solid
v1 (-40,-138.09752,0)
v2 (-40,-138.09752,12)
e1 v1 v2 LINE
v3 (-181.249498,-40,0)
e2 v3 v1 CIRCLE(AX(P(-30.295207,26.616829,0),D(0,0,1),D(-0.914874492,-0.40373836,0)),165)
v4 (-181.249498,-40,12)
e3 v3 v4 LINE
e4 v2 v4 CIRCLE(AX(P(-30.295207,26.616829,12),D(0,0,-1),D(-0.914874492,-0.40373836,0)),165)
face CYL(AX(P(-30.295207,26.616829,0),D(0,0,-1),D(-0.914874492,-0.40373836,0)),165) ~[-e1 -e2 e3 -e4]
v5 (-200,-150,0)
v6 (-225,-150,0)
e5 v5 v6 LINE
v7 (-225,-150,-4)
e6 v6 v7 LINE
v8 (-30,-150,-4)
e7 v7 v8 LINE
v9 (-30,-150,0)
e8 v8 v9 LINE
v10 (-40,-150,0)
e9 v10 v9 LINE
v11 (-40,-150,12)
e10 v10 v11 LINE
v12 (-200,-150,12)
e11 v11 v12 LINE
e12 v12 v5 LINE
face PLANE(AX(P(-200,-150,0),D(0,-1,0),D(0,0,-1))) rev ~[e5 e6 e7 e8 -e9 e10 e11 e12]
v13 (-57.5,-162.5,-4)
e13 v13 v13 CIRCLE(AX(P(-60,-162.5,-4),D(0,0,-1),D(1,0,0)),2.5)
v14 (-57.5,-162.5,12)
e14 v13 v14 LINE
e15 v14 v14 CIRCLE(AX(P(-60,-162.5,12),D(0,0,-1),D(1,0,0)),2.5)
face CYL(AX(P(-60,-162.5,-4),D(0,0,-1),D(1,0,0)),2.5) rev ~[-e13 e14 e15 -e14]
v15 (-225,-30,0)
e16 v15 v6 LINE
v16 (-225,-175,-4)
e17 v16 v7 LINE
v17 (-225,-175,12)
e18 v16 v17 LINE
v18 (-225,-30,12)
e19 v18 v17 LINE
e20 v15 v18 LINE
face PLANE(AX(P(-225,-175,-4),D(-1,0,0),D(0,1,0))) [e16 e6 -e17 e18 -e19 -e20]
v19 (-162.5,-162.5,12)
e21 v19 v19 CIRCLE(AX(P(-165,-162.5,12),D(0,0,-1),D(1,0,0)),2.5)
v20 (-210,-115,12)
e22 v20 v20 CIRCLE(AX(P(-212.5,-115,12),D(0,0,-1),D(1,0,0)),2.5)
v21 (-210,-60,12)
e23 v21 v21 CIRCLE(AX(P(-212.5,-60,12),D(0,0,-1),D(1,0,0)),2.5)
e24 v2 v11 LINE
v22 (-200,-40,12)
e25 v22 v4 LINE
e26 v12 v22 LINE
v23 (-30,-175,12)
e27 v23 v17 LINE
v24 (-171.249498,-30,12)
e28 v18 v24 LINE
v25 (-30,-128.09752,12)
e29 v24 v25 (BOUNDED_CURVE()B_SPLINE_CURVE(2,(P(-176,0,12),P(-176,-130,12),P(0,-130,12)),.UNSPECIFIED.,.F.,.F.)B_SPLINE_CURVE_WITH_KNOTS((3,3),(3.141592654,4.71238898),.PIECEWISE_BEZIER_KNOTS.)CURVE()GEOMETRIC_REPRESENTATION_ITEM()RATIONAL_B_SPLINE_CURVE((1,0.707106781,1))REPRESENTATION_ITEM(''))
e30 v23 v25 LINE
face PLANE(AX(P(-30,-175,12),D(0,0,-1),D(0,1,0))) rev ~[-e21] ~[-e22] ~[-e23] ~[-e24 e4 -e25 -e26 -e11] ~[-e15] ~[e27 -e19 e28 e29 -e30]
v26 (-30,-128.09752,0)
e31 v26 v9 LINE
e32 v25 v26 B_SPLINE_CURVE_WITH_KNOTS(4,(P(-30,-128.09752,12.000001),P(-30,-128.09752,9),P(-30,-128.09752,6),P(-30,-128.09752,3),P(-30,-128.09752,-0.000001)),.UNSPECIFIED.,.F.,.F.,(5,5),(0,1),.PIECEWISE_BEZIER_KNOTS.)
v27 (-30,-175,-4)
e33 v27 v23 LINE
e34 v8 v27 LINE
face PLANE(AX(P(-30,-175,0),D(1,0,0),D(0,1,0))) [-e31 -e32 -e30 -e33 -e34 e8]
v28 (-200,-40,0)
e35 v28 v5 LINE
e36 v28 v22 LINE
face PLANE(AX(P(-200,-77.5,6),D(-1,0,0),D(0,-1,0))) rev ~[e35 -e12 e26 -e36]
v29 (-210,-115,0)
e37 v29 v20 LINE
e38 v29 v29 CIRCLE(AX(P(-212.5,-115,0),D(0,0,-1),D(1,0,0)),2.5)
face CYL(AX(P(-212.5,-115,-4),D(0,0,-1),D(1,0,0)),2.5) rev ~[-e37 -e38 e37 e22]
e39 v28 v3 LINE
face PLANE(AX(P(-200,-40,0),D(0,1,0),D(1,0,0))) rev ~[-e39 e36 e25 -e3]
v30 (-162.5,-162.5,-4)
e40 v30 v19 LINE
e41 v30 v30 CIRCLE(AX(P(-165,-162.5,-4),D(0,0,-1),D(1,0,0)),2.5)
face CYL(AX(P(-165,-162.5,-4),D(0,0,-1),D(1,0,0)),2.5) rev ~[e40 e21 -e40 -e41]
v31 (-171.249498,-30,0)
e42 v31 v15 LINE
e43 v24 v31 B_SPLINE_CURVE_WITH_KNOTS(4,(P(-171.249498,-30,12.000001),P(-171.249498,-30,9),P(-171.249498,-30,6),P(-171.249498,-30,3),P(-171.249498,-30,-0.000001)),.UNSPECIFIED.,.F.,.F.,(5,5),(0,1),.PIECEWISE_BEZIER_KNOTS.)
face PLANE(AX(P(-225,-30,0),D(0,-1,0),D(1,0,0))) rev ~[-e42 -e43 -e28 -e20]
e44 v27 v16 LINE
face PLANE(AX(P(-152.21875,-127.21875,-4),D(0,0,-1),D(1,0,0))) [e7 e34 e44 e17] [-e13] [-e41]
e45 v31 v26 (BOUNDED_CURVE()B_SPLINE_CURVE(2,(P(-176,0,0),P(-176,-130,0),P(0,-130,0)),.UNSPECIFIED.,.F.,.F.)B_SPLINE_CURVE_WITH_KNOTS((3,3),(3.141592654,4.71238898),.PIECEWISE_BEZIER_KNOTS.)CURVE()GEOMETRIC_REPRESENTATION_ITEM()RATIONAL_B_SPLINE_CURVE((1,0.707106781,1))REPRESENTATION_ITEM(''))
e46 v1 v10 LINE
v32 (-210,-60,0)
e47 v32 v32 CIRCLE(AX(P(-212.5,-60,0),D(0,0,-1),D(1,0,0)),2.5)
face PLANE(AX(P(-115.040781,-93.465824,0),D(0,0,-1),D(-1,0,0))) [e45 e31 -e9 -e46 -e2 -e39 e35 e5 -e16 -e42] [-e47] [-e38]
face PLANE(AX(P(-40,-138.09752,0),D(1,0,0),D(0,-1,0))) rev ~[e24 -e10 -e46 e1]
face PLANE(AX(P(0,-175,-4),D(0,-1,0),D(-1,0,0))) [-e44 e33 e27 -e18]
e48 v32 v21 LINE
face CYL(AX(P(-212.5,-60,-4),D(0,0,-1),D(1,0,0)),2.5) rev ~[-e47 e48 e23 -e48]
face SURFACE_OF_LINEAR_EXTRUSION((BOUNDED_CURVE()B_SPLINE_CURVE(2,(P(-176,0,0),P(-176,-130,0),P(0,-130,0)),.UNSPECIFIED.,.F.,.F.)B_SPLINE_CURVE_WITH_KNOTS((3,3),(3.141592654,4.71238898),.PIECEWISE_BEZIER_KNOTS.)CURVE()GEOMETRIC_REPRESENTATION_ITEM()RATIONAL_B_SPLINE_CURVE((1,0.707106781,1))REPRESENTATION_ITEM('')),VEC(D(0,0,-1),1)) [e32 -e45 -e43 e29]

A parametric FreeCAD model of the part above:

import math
import FreeCAD as App
import Part
import Sketcher

V = App.Vector
Q = App.Units.Quantity

doc = App.newDocument("Part")
params = doc.addObject("Spreadsheet::Sheet", "Params")
for row, (alias, value) in enumerate([
    ("sketch1_width", "24 mm"),
    ("sketch1_height", "150 mm"),
    ("pad1_length", "12 mm"),
    ("sketch2_width", "200 mm"),
    ("sketch2_height", "20 mm"),
    ("pad2_length", "5 mm"),
    ("sketch3_width", "155 mm"),
    ("sketch3_height", "20 mm"),
    ("pad3_length", "5 mm"),
    ("sketch4_diameter", "5 mm"),
    ("sketch4_width", "225 mm"),
    ("sketch4_width2", "20 mm"),
    ("sketch4_height", "175 mm"),
    ("pad4_length", "25 mm"),
    ("sketch5_width", "15 mm"),
    ("sketch5_width2", "205 mm"),
    ("sketch5_height", "155 mm"),
    ("pad5_length", "5 mm"),
    ("sketch6_width", "195 mm"),
    ("sketch6_width2", "30 mm"),
    ("sketch6_height", "145 mm"),
    ("pocket1_length", "50 mm"),
    ("sketch7_width", "145 mm"),
    ("sketch7_height", "9 mm"),
    ("sketch8_radius", "165 mm"),
    ("sketch8_width", "160 mm"),
    ("sketch8_height", "110 mm"),
    ("pocket3_length", "25 mm"),
    ("sketch9_width", "120 mm"),
    ("sketch9_height", "4 mm"),
], start=1):
    params.set(f"A{row}", alias)
    params.set(f"B{row}", "=" + value)
    params.setAlias(f"B{row}", alias)

body = doc.addObject("PartDesign::Body", "Body")

sketch1 = body.newObject("Sketcher::SketchObject", "Sketch")
sketch1.AttachmentSupport = (doc.getObject("XY_Plane"), [""])
sketch1.MapMode = "FlatFace"
sketch1.addGeometry(Part.BSplineCurve([V(-176, 0, 0), V(-176, -130, 0), V(0, -130, 0)], [3, 3], [3.141592654, 4.71238898], False, 2, [1, 0.707106781, 1], False), False)
sketch1.addGeometry(Part.LineSegment(V(-176, 0, 0), V(-200, 0, 0)), False)
sketch1.addGeometry(Part.LineSegment(V(-200, 0, 0), V(-200, -150, 0)), False)
sketch1.addGeometry(Part.LineSegment(V(-200, -150, 0), V(0, -150, 0)), False)
sketch1.addGeometry(Part.LineSegment(V(0, -150, 0), V(0, -130, 0)), False)
sketch1.addConstraint(Sketcher.Constraint("Block", 0))
sketch1.addConstraint(Sketcher.Constraint("Coincident", 0, 1, 1, 1))
sketch1.addConstraint(Sketcher.Constraint("Coincident", 1, 2, 2, 1))
sketch1.addConstraint(Sketcher.Constraint("Coincident", 2, 2, 3, 1))
sketch1.addConstraint(Sketcher.Constraint("Coincident", 3, 2, 4, 1))
sketch1.addConstraint(Sketcher.Constraint("Coincident", 4, 2, 0, 2))
sketch1.addConstraint(Sketcher.Constraint("Horizontal", 1))
sketch1.addConstraint(Sketcher.Constraint("Vertical", 2))
sketch1.addConstraint(Sketcher.Constraint("Horizontal", 3))
sketch1.addConstraint(Sketcher.Constraint("Vertical", 4))
sketch1.addConstraint(Sketcher.Constraint("DistanceX", 1, 2, 1, 1, Q("24 mm")))
sketch1.addConstraint(Sketcher.Constraint("DistanceY", 2, 2, 2, 1, Q("150 mm")))
sketch1.setExpression("Constraints[10]", "Params.sketch1_width")
sketch1.setExpression("Constraints[11]", "Params.sketch1_height")
pad1 = body.newObject("PartDesign::Pad", "Pad")
pad1.Profile = sketch1
pad1.setExpression("Length", "Params.pad1_length")

sketch2 = body.newObject("Sketcher::SketchObject", "Sketch001")
sketch2.AttachmentSupport = (doc.getObject("XZ_Plane"), [""])
sketch2.MapMode = "FlatFace"
sketch2.AttachmentOffset = App.Placement(V(0, 0, 150), App.Rotation())
sketch2.addGeometry(Part.LineSegment(V(-200, 16, 0), V(-200, -4, 0)), False)
sketch2.addGeometry(Part.LineSegment(V(-200, -4, 0), V(0, -4, 0)), False)
sketch2.addGeometry(Part.LineSegment(V(0, -4, 0), V(0, 16, 0)), False)
sketch2.addGeometry(Part.LineSegment(V(0, 16, 0), V(-200, 16, 0)), False)
sketch2.addConstraint(Sketcher.Constraint("Coincident", 0, 2, 1, 1))
sketch2.addConstraint(Sketcher.Constraint("Coincident", 1, 2, 2, 1))
sketch2.addConstraint(Sketcher.Constraint("Coincident", 2, 2, 3, 1))
sketch2.addConstraint(Sketcher.Constraint("Coincident", 3, 2, 0, 1))
sketch2.addConstraint(Sketcher.Constraint("Vertical", 0))
sketch2.addConstraint(Sketcher.Constraint("Horizontal", 1))
sketch2.addConstraint(Sketcher.Constraint("Vertical", 2))
sketch2.addConstraint(Sketcher.Constraint("Horizontal", 3))
sketch2.addConstraint(Sketcher.Constraint("PointOnObject", 1, 2, -2))
sketch2.addConstraint(Sketcher.Constraint("DistanceX", 1, 1, 1, 2, Q("200 mm")))
sketch2.addConstraint(Sketcher.Constraint("DistanceY", 0, 2, 0, 1, Q("20 mm")))
sketch2.addConstraint(Sketcher.Constraint("DistanceY", 0, 2, -1, 1, Q("4 mm")))
sketch2.setExpression("Constraints[9]", "Params.sketch2_width")
sketch2.setExpression("Constraints[10]", "Params.sketch2_height")
pad2 = body.newObject("PartDesign::Pad", "Pad001")
pad2.Profile = sketch2
pad2.setExpression("Length", "Params.pad2_length")

sketch3 = body.newObject("Sketcher::SketchObject", "Sketch002")
sketch3.AttachmentSupport = (doc.getObject("YZ_Plane"), [""])
sketch3.MapMode = "FlatFace"
sketch3.AttachmentOffset = App.Placement(V(0, 0, -200), App.Rotation())
sketch3.addGeometry(Part.LineSegment(V(0, 16, 0), V(0, -4, 0)), False)
sketch3.addGeometry(Part.LineSegment(V(0, -4, 0), V(-155, -4, 0)), False)
sketch3.addGeometry(Part.LineSegment(V(-155, -4, 0), V(-155, 16, 0)), False)
sketch3.addGeometry(Part.LineSegment(V(-155, 16, 0), V(0, 16, 0)), False)
sketch3.addConstraint(Sketcher.Constraint("Coincident", 0, 2, 1, 1))
sketch3.addConstraint(Sketcher.Constraint("Coincident", 1, 2, 2, 1))
sketch3.addConstraint(Sketcher.Constraint("Coincident", 2, 2, 3, 1))
sketch3.addConstraint(Sketcher.Constraint("Coincident", 3, 2, 0, 1))
sketch3.addConstraint(Sketcher.Constraint("Vertical", 0))
sketch3.addConstraint(Sketcher.Constraint("Horizontal", 1))
sketch3.addConstraint(Sketcher.Constraint("Vertical", 2))
sketch3.addConstraint(Sketcher.Constraint("Horizontal", 3))
sketch3.addConstraint(Sketcher.Constraint("PointOnObject", 0, 2, -2))
sketch3.addConstraint(Sketcher.Constraint("DistanceX", 1, 2, 1, 1, Q("155 mm")))
sketch3.addConstraint(Sketcher.Constraint("DistanceY", 0, 2, 0, 1, Q("20 mm")))
sketch3.addConstraint(Sketcher.Constraint("DistanceY", 0, 2, -1, 1, Q("4 mm")))
sketch3.setExpression("Constraints[9]", "Params.sketch3_width")
sketch3.setExpression("Constraints[10]", "Params.sketch3_height")
pad3 = body.newObject("PartDesign::Pad", "Pad002")
pad3.Profile = sketch3
pad3.setExpression("Length", "Params.pad3_length")
pad3.Reversed = True

sketch4 = body.newObject("Sketcher::SketchObject", "Sketch003")
sketch4.AttachmentSupport = (doc.getObject("XY_Plane"), [""])
sketch4.MapMode = "FlatFace"
sketch4.AttachmentOffset = App.Placement(V(0, 0, -4), App.Rotation())
sketch4.addGeometry(Part.LineSegment(V(0, -155, 0), V(0, -175, 0)), False)
sketch4.addGeometry(Part.LineSegment(V(0, -175, 0), V(-225, -175, 0)), False)
sketch4.addGeometry(Part.LineSegment(V(-225, -175, 0), V(-225, 0, 0)), False)
sketch4.addGeometry(Part.LineSegment(V(-225, 0, 0), V(-205, 0, 0)), False)
sketch4.addGeometry(Part.LineSegment(V(-205, 0, 0), V(-205, -155, 0)), False)
sketch4.addGeometry(Part.LineSegment(V(-205, -155, 0), V(0, -155, 0)), False)
sketch4.addGeometry(Part.Circle(V(-212.5, -60, 0), V(0, 0, 1), 2.5), False)
sketch4.addGeometry(Part.Circle(V(-212.5, -115, 0), V(0, 0, 1), 2.5), False)
sketch4.addGeometry(Part.Circle(V(-165, -162.5, 0), V(0, 0, 1), 2.5), False)
sketch4.addGeometry(Part.Circle(V(-60, -162.5, 0), V(0, 0, 1), 2.5), False)
sketch4.addConstraint(Sketcher.Constraint("Coincident", 0, 2, 1, 1))
sketch4.addConstraint(Sketcher.Constraint("Coincident", 1, 2, 2, 1))
sketch4.addConstraint(Sketcher.Constraint("Coincident", 2, 2, 3, 1))
sketch4.addConstraint(Sketcher.Constraint("Coincident", 3, 2, 4, 1))
sketch4.addConstraint(Sketcher.Constraint("Coincident", 4, 2, 5, 1))
sketch4.addConstraint(Sketcher.Constraint("Coincident", 5, 2, 0, 1))
sketch4.addConstraint(Sketcher.Constraint("Vertical", 0))
sketch4.addConstraint(Sketcher.Constraint("Horizontal", 1))
sketch4.addConstraint(Sketcher.Constraint("Vertical", 2))
sketch4.addConstraint(Sketcher.Constraint("Horizontal", 3))
sketch4.addConstraint(Sketcher.Constraint("Vertical", 4))
sketch4.addConstraint(Sketcher.Constraint("Horizontal", 5))
sketch4.addConstraint(Sketcher.Constraint("Equal", 6, 7))
sketch4.addConstraint(Sketcher.Constraint("Equal", 7, 8))
sketch4.addConstraint(Sketcher.Constraint("Equal", 8, 9))
sketch4.addConstraint(Sketcher.Constraint("PointOnObject", 0, 2, -2))
sketch4.addConstraint(Sketcher.Constraint("PointOnObject", 2, 2, -1))
sketch4.addConstraint(Sketcher.Constraint("Horizontal", 8, 3, 9, 3))
sketch4.addConstraint(Sketcher.Constraint("Vertical", 6, 3, 7, 3))
sketch4.addConstraint(Sketcher.Constraint("Equal", 3, 0))
sketch4.addConstraint(Sketcher.Constraint("Diameter", 6, Q("5 mm")))
sketch4.addConstraint(Sketcher.Constraint("DistanceX", 1, 2, 1, 1, Q("225 mm")))
sketch4.addConstraint(Sketcher.Constraint("DistanceX", 3, 1, 3, 2, Q("20 mm")))
sketch4.addConstraint(Sketcher.Constraint("DistanceY", 2, 1, 2, 2, Q("175 mm")))
sketch4.addConstraint(Sketcher.Constraint("DistanceY", 6, 3, -1, 1, Q("60 mm")))
sketch4.addConstraint(Sketcher.Constraint("DistanceY", 7, 3, -1, 1, Q("115 mm")))
sketch4.addConstraint(Sketcher.Constraint("DistanceX", 8, 3, -1, 1, Q("165 mm")))
sketch4.addConstraint(Sketcher.Constraint("DistanceX", 9, 3, -1, 1, Q("60 mm")))
sketch4.addConstraint(Sketcher.Constraint("DistanceX", 6, 3, -1, 1, Q("212.5 mm")))
sketch4.addConstraint(Sketcher.Constraint("DistanceY", 8, 3, -1, 1, Q("162.5 mm")))
sketch4.setExpression("Constraints[20]", "Params.sketch4_diameter")
sketch4.setExpression("Constraints[21]", "Params.sketch4_width")
sketch4.setExpression("Constraints[22]", "Params.sketch4_width2")
sketch4.setExpression("Constraints[23]", "Params.sketch4_height")
pad4 = body.newObject("PartDesign::Pad", "Pad003")
pad4.Profile = sketch4
pad4.setExpression("Length", "Params.pad4_length")

sketch5 = body.newObject("Sketcher::SketchObject", "Sketch004")
sketch5.AttachmentSupport = (doc.getObject("XY_Plane"), [""])
sketch5.MapMode = "FlatFace"
sketch5.AttachmentOffset = App.Placement(V(0, 0, 16), App.Rotation())
sketch5.addGeometry(Part.LineSegment(V(-190, 0, 0), V(-205, 0, 0)), False)
sketch5.addGeometry(Part.LineSegment(V(-205, 0, 0), V(-205, -155, 0)), False)
sketch5.addGeometry(Part.LineSegment(V(-205, -155, 0), V(0, -155, 0)), False)
sketch5.addGeometry(Part.LineSegment(V(0, -155, 0), V(0, -140, 0)), False)
sketch5.addGeometry(Part.LineSegment(V(0, -140, 0), V(-190, -140, 0)), False)
sketch5.addGeometry(Part.LineSegment(V(-190, -140, 0), V(-190, 0, 0)), False)
sketch5.addConstraint(Sketcher.Constraint("Coincident", 0, 2, 1, 1))
sketch5.addConstraint(Sketcher.Constraint("Coincident", 1, 2, 2, 1))
sketch5.addConstraint(Sketcher.Constraint("Coincident", 2, 2, 3, 1))
sketch5.addConstraint(Sketcher.Constraint("Coincident", 3, 2, 4, 1))
sketch5.addConstraint(Sketcher.Constraint("Coincident", 4, 2, 5, 1))
sketch5.addConstraint(Sketcher.Constraint("Coincident", 5, 2, 0, 1))
sketch5.addConstraint(Sketcher.Constraint("Horizontal", 0))
sketch5.addConstraint(Sketcher.Constraint("Vertical", 1))
sketch5.addConstraint(Sketcher.Constraint("Horizontal", 2))
sketch5.addConstraint(Sketcher.Constraint("Vertical", 3))
sketch5.addConstraint(Sketcher.Constraint("Horizontal", 4))
sketch5.addConstraint(Sketcher.Constraint("Vertical", 5))
sketch5.addConstraint(Sketcher.Constraint("PointOnObject", 0, 2, -1))
sketch5.addConstraint(Sketcher.Constraint("PointOnObject", 2, 2, -2))
sketch5.addConstraint(Sketcher.Constraint("Equal", 0, 3))
sketch5.addConstraint(Sketcher.Constraint("DistanceX", 0, 2, 0, 1, Q("15 mm")))
sketch5.addConstraint(Sketcher.Constraint("DistanceX", 2, 1, 2, 2, Q("205 mm")))
sketch5.addConstraint(Sketcher.Constraint("DistanceY", 1, 2, 1, 1, Q("155 mm")))
sketch5.setExpression("Constraints[15]", "Params.sketch5_width")
sketch5.setExpression("Constraints[16]", "Params.sketch5_width2")
sketch5.setExpression("Constraints[17]", "Params.sketch5_height")
pad5 = body.newObject("PartDesign::Pad", "Pad004")
pad5.Profile = sketch5
pad5.setExpression("Length", "Params.pad5_length")

sketch6 = body.newObject("Sketcher::SketchObject", "Sketch005")
sketch6.AttachmentSupport = (doc.getObject("XY_Plane"), [""])
sketch6.MapMode = "FlatFace"
sketch6.addGeometry(Part.LineSegment(V(-225, 0, 0), V(-225, -30, 0)), False)
sketch6.addGeometry(Part.LineSegment(V(-225, -30, 0), V(-30, -30, 0)), False)
sketch6.addGeometry(Part.LineSegment(V(-30, -30, 0), V(-30, -175, 0)), False)
sketch6.addGeometry(Part.LineSegment(V(-30, -175, 0), V(0, -175, 0)), False)
sketch6.addGeometry(Part.LineSegment(V(0, -175, 0), V(0, 0, 0)), False)
sketch6.addGeometry(Part.LineSegment(V(0, 0, 0), V(-225, 0, 0)), False)
sketch6.addConstraint(Sketcher.Constraint("Coincident", 0, 2, 1, 1))
sketch6.addConstraint(Sketcher.Constraint("Coincident", 1, 2, 2, 1))
sketch6.addConstraint(Sketcher.Constraint("Coincident", 2, 2, 3, 1))
sketch6.addConstraint(Sketcher.Constraint("Coincident", 3, 2, 4, 1))
sketch6.addConstraint(Sketcher.Constraint("Coincident", 4, 2, 5, 1))
sketch6.addConstraint(Sketcher.Constraint("Coincident", 5, 2, 0, 1))
sketch6.addConstraint(Sketcher.Constraint("Vertical", 0))
sketch6.addConstraint(Sketcher.Constraint("Horizontal", 1))
sketch6.addConstraint(Sketcher.Constraint("Vertical", 2))
sketch6.addConstraint(Sketcher.Constraint("Horizontal", 3))
sketch6.addConstraint(Sketcher.Constraint("Vertical", 4))
sketch6.addConstraint(Sketcher.Constraint("Horizontal", 5))
sketch6.addConstraint(Sketcher.Constraint("Coincident", 4, 2, -1, 1))
sketch6.addConstraint(Sketcher.Constraint("Equal", 3, 0))
sketch6.addConstraint(Sketcher.Constraint("DistanceX", 1, 1, 1, 2, Q("195 mm")))
sketch6.addConstraint(Sketcher.Constraint("DistanceX", 3, 1, 3, 2, Q("30 mm")))
sketch6.addConstraint(Sketcher.Constraint("DistanceY", 2, 2, 2, 1, Q("145 mm")))
sketch6.setExpression("Constraints[14]", "Params.sketch6_width")
sketch6.setExpression("Constraints[15]", "Params.sketch6_width2")
sketch6.setExpression("Constraints[16]", "Params.sketch6_height")
pocket1 = body.newObject("PartDesign::Pocket", "Pocket")
pocket1.Profile = sketch6
pocket1.setExpression("Length", "Params.pocket1_length")
pocket1.Midplane = True

sketch7 = body.newObject("Sketcher::SketchObject", "Sketch006")
sketch7.AttachmentSupport = (doc.getObject("YZ_Plane"), [""])
sketch7.MapMode = "FlatFace"
sketch7.AttachmentOffset = App.Placement(V(0, 0, -30), App.Rotation())
sketch7.addGeometry(Part.LineSegment(V(-175, 21, 0), V(-175, 12, 0)), False)
sketch7.addGeometry(Part.LineSegment(V(-175, 12, 0), V(-30, 12, 0)), False)
sketch7.addGeometry(Part.LineSegment(V(-30, 12, 0), V(-30, 21, 0)), False)
sketch7.addGeometry(Part.LineSegment(V(-30, 21, 0), V(-175, 21, 0)), False)
sketch7.addConstraint(Sketcher.Constraint("Coincident", 0, 2, 1, 1))
sketch7.addConstraint(Sketcher.Constraint("Coincident", 1, 2, 2, 1))
sketch7.addConstraint(Sketcher.Constraint("Coincident", 2, 2, 3, 1))
sketch7.addConstraint(Sketcher.Constraint("Coincident", 3, 2, 0, 1))
sketch7.addConstraint(Sketcher.Constraint("Vertical", 0))
sketch7.addConstraint(Sketcher.Constraint("Horizontal", 1))
sketch7.addConstraint(Sketcher.Constraint("Vertical", 2))
sketch7.addConstraint(Sketcher.Constraint("Horizontal", 3))
sketch7.addConstraint(Sketcher.Constraint("DistanceX", 1, 1, 1, 2, Q("145 mm")))
sketch7.addConstraint(Sketcher.Constraint("DistanceY", 0, 2, 0, 1, Q("9 mm")))
sketch7.addConstraint(Sketcher.Constraint("DistanceX", 0, 2, -1, 1, Q("175 mm")))
sketch7.addConstraint(Sketcher.Constraint("DistanceY", -1, 1, 0, 2, Q("12 mm")))
sketch7.setExpression("Constraints[8]", "Params.sketch7_width")
sketch7.setExpression("Constraints[9]", "Params.sketch7_height")
pocket2 = body.newObject("PartDesign::Pocket", "Pocket001")
pocket2.Profile = sketch7
pocket2.Type = "ThroughAll"

sketch8 = body.newObject("Sketcher::SketchObject", "Sketch007")
sketch8.AttachmentSupport = (doc.getObject("XY_Plane"), [""])
sketch8.MapMode = "FlatFace"
sketch8.addGeometry(Part.ArcOfCircle(Part.Circle(V(-30.295207, 26.616829, 0), V(0, 0, 1), 165), math.radians(-156.18791), math.radians(-93.371908)), False)
sketch8.addGeometry(Part.LineSegment(V(-40, -138.09752, 0), V(-40, -150, 0)), False)
sketch8.addGeometry(Part.LineSegment(V(-40, -150, 0), V(-200, -150, 0)), False)
sketch8.addGeometry(Part.LineSegment(V(-200, -150, 0), V(-200, -40, 0)), False)
sketch8.addGeometry(Part.LineSegment(V(-200, -40, 0), V(-181.249498, -40, 0)), False)
sketch8.addConstraint(Sketcher.Constraint("Coincident", 0, 2, 1, 1))
sketch8.addConstraint(Sketcher.Constraint("Coincident", 1, 2, 2, 1))
sketch8.addConstraint(Sketcher.Constraint("Coincident", 2, 2, 3, 1))
sketch8.addConstraint(Sketcher.Constraint("Coincident", 3, 2, 4, 1))
sketch8.addConstraint(Sketcher.Constraint("Coincident", 4, 2, 0, 1))
sketch8.addConstraint(Sketcher.Constraint("Vertical", 1))
sketch8.addConstraint(Sketcher.Constraint("Horizontal", 2))
sketch8.addConstraint(Sketcher.Constraint("Vertical", 3))
sketch8.addConstraint(Sketcher.Constraint("Horizontal", 4))
sketch8.addConstraint(Sketcher.Constraint("Radius", 0, Q("165 mm")))
sketch8.addConstraint(Sketcher.Constraint("DistanceX", 2, 2, 2, 1, Q("160 mm")))
sketch8.addConstraint(Sketcher.Constraint("DistanceY", 3, 1, 3, 2, Q("110 mm")))
sketch8.addConstraint(Sketcher.Constraint("DistanceX", 0, 2, -1, 1, Q("40 mm")))
sketch8.addConstraint(Sketcher.Constraint("DistanceY", 1, 2, -1, 1, Q("150 mm")))
sketch8.addConstraint(Sketcher.Constraint("DistanceY", 1, 2, 1, 1, Q("11.90248 mm")))
sketch8.addConstraint(Sketcher.Constraint("DistanceX", 4, 1, 4, 2, Q("18.750502 mm")))
sketch8.setExpression("Constraints[9]", "Params.sketch8_radius")
sketch8.setExpression("Constraints[10]", "Params.sketch8_width")
sketch8.setExpression("Constraints[11]", "Params.sketch8_height")
pocket3 = body.newObject("PartDesign::Pocket", "Pocket002")
pocket3.Profile = sketch8
pocket3.setExpression("Length", "Params.pocket3_length")
pocket3.Reversed = True

sketch9 = body.newObject("Sketcher::SketchObject", "Sketch008")
sketch9.AttachmentSupport = (doc.getObject("YZ_Plane"), [""])
sketch9.MapMode = "FlatFace"
sketch9.AttachmentOffset = App.Placement(V(0, 0, -200), App.Rotation())
sketch9.addGeometry(Part.LineSegment(V(-150, 0, 0), V(-150, -4, 0)), False)
sketch9.addGeometry(Part.LineSegment(V(-150, -4, 0), V(-30, -4, 0)), False)
sketch9.addGeometry(Part.LineSegment(V(-30, -4, 0), V(-30, 0, 0)), False)
sketch9.addGeometry(Part.LineSegment(V(-30, 0, 0), V(-150, 0, 0)), False)
sketch9.addConstraint(Sketcher.Constraint("Coincident", 0, 2, 1, 1))
sketch9.addConstraint(Sketcher.Constraint("Coincident", 1, 2, 2, 1))
sketch9.addConstraint(Sketcher.Constraint("Coincident", 2, 2, 3, 1))
sketch9.addConstraint(Sketcher.Constraint("Coincident", 3, 2, 0, 1))
sketch9.addConstraint(Sketcher.Constraint("Vertical", 0))
sketch9.addConstraint(Sketcher.Constraint("Horizontal", 1))
sketch9.addConstraint(Sketcher.Constraint("Vertical", 2))
sketch9.addConstraint(Sketcher.Constraint("Horizontal", 3))
sketch9.addConstraint(Sketcher.Constraint("PointOnObject", 2, 2, -1))
sketch9.addConstraint(Sketcher.Constraint("DistanceX", 1, 1, 1, 2, Q("120 mm")))
sketch9.addConstraint(Sketcher.Constraint("DistanceY", 0, 2, 0, 1, Q("4 mm")))
sketch9.addConstraint(Sketcher.Constraint("DistanceX", 0, 2, -1, 1, Q("150 mm")))
sketch9.setExpression("Constraints[9]", "Params.sketch9_width")
sketch9.setExpression("Constraints[10]", "Params.sketch9_height")
pocket4 = body.newObject("PartDesign::Pocket", "Pocket003")
pocket4.Profile = sketch9
pocket4.Type = "ThroughAll"

doc.recompute()
